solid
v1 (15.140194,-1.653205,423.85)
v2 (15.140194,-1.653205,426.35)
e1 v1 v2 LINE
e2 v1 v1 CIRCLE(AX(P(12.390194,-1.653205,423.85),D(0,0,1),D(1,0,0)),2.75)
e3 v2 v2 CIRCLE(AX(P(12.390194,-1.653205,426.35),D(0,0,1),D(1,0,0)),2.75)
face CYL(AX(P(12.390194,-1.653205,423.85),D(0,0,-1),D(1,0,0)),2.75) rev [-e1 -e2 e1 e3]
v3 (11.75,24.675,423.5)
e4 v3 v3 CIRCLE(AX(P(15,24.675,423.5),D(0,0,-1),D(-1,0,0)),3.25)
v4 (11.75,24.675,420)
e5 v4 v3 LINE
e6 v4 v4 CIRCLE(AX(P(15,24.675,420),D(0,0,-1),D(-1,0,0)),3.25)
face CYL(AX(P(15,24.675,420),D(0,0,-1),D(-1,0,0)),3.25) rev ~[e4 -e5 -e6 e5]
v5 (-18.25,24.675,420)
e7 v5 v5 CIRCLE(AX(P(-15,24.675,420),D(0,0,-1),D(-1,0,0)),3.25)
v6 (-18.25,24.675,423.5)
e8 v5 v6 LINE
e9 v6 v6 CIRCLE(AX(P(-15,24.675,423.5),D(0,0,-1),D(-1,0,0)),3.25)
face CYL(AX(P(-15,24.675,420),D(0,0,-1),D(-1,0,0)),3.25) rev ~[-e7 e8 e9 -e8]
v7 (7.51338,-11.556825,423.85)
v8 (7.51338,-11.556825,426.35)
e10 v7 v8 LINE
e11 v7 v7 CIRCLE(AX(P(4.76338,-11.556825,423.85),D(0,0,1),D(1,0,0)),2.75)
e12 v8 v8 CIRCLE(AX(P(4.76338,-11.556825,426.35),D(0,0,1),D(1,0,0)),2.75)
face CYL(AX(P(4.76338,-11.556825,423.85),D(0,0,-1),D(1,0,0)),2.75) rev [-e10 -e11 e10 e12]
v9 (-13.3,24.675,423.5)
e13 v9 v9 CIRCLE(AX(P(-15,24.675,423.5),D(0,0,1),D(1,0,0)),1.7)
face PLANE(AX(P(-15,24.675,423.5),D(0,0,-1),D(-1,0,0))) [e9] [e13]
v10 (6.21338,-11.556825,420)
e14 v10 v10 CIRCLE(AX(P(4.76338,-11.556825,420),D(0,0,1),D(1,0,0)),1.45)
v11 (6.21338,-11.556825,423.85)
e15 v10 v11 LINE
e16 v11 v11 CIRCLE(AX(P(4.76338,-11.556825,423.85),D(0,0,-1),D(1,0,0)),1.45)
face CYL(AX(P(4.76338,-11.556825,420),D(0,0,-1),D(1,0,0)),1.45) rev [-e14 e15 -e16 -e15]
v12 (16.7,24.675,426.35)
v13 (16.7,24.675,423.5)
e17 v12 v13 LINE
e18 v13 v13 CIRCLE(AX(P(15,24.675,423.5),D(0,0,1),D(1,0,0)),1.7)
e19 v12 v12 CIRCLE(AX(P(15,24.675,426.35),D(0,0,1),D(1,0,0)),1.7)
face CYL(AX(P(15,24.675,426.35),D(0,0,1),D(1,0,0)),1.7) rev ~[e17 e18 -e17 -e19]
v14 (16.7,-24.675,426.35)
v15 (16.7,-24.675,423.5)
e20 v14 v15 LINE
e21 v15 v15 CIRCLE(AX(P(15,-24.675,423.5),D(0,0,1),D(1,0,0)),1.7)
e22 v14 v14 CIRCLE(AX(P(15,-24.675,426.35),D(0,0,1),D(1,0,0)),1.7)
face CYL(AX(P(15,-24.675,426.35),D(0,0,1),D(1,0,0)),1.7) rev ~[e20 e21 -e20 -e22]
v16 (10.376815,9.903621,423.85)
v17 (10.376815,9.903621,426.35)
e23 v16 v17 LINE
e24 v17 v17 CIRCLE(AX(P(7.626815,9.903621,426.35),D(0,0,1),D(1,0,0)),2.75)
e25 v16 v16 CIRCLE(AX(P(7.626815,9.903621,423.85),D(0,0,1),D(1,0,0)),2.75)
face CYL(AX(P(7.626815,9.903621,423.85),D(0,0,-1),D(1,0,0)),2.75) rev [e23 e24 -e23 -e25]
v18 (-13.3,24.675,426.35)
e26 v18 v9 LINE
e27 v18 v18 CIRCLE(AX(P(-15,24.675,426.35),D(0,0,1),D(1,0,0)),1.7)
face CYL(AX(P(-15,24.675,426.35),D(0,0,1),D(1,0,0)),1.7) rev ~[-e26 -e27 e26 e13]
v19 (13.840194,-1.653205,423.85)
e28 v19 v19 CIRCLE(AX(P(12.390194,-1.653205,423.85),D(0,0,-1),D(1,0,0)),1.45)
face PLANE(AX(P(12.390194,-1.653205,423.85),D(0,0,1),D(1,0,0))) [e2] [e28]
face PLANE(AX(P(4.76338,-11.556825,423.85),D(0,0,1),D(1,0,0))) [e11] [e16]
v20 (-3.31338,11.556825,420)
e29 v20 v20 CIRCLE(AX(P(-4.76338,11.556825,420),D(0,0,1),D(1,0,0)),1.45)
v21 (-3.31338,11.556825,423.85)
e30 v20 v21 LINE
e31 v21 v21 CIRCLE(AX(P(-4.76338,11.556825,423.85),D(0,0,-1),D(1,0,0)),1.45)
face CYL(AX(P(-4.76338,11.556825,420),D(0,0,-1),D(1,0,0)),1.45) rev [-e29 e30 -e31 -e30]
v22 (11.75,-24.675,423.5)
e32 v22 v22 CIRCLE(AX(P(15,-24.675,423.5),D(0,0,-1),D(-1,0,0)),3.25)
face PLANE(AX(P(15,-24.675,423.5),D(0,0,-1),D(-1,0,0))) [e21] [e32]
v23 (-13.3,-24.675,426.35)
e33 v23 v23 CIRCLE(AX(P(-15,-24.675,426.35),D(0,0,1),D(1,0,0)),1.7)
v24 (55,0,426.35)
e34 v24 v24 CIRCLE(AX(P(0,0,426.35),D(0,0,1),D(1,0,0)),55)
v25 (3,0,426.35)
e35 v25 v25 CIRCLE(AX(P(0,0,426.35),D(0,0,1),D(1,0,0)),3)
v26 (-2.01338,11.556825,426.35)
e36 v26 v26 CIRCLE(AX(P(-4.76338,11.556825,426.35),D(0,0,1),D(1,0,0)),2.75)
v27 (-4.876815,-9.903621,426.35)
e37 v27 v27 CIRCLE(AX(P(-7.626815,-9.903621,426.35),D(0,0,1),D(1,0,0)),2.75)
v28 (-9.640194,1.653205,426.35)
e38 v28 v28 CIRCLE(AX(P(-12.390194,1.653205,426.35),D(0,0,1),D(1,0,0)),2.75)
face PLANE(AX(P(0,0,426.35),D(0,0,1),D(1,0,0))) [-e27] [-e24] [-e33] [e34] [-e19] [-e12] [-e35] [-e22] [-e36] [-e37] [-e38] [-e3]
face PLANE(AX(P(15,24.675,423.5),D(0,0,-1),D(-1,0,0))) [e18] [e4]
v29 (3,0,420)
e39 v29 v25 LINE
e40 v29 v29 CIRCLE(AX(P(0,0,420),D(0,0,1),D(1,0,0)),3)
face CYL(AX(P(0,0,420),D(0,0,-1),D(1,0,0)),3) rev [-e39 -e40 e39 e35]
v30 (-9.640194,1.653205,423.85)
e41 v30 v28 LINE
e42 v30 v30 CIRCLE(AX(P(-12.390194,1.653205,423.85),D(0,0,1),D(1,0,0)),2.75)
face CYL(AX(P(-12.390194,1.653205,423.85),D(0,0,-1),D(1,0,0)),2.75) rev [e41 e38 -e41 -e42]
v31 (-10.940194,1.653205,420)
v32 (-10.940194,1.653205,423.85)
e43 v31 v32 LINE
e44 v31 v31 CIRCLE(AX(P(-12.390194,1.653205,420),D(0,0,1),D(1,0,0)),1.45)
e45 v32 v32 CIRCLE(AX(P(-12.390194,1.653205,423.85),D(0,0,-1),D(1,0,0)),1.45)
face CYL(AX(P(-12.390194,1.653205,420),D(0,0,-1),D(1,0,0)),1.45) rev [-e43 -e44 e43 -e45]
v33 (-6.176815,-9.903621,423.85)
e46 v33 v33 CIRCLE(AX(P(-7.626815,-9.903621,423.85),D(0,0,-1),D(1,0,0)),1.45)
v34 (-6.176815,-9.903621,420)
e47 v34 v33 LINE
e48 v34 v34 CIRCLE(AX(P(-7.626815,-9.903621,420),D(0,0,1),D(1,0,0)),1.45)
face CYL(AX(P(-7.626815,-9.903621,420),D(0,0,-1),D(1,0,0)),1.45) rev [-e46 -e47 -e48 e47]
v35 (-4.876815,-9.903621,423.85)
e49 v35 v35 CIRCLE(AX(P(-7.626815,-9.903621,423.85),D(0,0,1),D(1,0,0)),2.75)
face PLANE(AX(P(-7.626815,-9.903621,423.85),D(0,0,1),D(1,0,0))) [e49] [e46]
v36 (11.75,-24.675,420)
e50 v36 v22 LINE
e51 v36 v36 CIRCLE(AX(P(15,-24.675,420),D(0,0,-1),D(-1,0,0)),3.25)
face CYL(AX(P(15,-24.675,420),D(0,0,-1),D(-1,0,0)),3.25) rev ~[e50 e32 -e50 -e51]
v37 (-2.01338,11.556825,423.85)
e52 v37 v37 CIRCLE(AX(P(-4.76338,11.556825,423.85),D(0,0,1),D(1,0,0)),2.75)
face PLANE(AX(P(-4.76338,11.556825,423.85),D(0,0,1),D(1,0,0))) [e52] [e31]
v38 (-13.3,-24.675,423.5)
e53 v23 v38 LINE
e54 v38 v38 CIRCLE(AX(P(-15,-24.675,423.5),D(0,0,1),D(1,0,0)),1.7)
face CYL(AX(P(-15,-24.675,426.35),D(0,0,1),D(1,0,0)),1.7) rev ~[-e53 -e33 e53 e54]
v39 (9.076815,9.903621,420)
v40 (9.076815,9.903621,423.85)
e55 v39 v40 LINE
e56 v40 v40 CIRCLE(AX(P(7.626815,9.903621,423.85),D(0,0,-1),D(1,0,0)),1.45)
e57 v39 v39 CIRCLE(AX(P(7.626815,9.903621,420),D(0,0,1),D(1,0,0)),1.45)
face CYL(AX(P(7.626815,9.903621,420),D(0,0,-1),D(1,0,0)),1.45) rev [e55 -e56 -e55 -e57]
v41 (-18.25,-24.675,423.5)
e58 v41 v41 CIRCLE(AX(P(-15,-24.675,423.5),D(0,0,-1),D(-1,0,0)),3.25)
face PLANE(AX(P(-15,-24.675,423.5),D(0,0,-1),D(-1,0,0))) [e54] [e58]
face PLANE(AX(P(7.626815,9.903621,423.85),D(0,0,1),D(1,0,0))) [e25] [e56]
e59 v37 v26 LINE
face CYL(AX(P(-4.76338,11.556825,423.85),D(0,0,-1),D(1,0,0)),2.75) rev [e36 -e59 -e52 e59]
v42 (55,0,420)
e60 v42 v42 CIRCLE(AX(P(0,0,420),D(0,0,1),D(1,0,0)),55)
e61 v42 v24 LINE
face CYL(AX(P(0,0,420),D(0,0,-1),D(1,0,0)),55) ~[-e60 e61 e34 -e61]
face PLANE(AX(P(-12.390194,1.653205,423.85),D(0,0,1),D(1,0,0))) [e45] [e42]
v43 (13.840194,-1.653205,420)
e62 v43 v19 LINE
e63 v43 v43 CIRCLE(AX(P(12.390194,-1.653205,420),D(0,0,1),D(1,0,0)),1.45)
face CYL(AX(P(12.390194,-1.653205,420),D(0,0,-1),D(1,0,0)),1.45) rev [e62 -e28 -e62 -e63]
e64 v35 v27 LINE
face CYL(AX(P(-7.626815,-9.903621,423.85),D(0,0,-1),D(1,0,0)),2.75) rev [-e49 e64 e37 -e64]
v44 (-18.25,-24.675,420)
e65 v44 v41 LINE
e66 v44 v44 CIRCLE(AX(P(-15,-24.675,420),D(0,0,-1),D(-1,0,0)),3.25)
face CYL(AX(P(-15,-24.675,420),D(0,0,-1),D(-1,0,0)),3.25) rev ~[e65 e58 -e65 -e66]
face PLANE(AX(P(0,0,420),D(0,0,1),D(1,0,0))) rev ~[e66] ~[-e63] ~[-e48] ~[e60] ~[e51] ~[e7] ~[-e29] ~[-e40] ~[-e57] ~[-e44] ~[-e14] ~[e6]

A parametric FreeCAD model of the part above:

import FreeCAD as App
import Part
import Sketcher

doc = App.newDocument("Part")
body = doc.addObject("PartDesign::Body", "Body")

sketch1 = doc.addObject("Sketcher::SketchObject", "Sketch")
body.addObject(sketch1)
sketch1.AttachmentSupport = (doc.XY_Plane, [""])
sketch1.MapMode = "FlatFace"
sketch1.AttachmentOffset = App.Placement(App.Vector(0, 0, 420), App.Rotation())
sketch1.addGeometry(Part.Circle(App.Vector(0, 0, 0), App.Vector(0, 0, 1), 55), False)
sketch1.addConstraint([
    Sketcher.Constraint("Coincident", 0, 3, -1, 1),
    Sketcher.Constraint("Diameter", 0, 110.0),
])
pad1 = doc.addObject("PartDesign::Pad", "Pad")
body.addObject(pad1)
pad1.Profile = sketch1
pad1.Length = 6.35

sketch2 = doc.addObject("Sketcher::SketchObject", "Sketch001")
body.addObject(sketch2)
sketch2.AttachmentSupport = (doc.XY_Plane, [""])
sketch2.MapMode = "FlatFace"
sketch2.AttachmentOffset = App.Placement(App.Vector(0, 0, 420), App.Rotation())
sketch2.addGeometry([
    Part.Circle(App.Vector(12.390194, -1.653205, 0), App.Vector(0, 0, 1), 1.45),
    Part.Circle(App.Vector(7.626815, 9.903621, 0), App.Vector(0, 0, 1), 1.45),
    Part.Circle(App.Vector(-4.76338, 11.556825, 0), App.Vector(0, 0, 1), 1.45),
    Part.Circle(App.Vector(-12.390194, 1.653205, 0), App.Vector(0, 0, 1), 1.45),
    Part.Circle(App.Vector(-7.626815, -9.903621, 0), App.Vector(0, 0, 1), 1.45),
    Part.Circle(App.Vector(4.76338, -11.556825, 0), App.Vector(0, 0, 1), 1.45),
], False)
sketch2.addConstraint([
    Sketcher.Constraint("Equal", 0, 1),
    Sketcher.Constraint("Equal", 1, 2),
    Sketcher.Constraint("Equal", 2, 3),
    Sketcher.Constraint("Equal", 3, 4),
    Sketcher.Constraint("Equal", 4, 5),
    Sketcher.Constraint("Symmetric", 0, 3, 3, 3, -1, 1),
    Sketcher.Constraint("Symmetric", 1, 3, 4, 3, -1, 1),
    Sketcher.Constraint("Symmetric", 2, 3, 5, 3, -1, 1),
    Sketcher.Constraint("Diameter", 0, 2.9),
    Sketcher.Constraint("DistanceY", -1, 1, 1, 3, 9.903621),
    Sketcher.Constraint("DistanceX", 2, 3, -1, 1, 4.76338),
    Sketcher.Constraint("DistanceX", 1, 3, 0, 3, 4.76338),
    Sketcher.Constraint("DistanceY", 0, 3, 2, 3, 13.21003),
    Sketcher.Constraint("DistanceY", 3, 3, 2, 3, 9.903621),
    Sketcher.Constraint("DistanceX", 3, 3, 1, 3, 20.017009),
])
pocket1 = doc.addObject("PartDesign::Pocket", "Pocket")
body.addObject(pocket1)
pocket1.Profile = sketch2
pocket1.Length = 6.35
pocket1.Reversed = True

sketch3 = doc.addObject("Sketcher::SketchObject", "Sketch002")
body.addObject(sketch3)
sketch3.AttachmentSupport = (doc.XY_Plane, [""])
sketch3.MapMode = "FlatFace"
sketch3.AttachmentOffset = App.Placement(App.Vector(0, 0, 423.85), App.Rotation())
sketch3.addGeometry([
    Part.Circle(App.Vector(12.390194, -1.653205, 0), App.Vector(0, 0, 1), 2.75),
    Part.Circle(App.Vector(7.626815, 9.903621, 0), App.Vector(0, 0, 1), 2.75),
    Part.Circle(App.Vector(-4.76338, 11.556825, 0), App.Vector(0, 0, 1), 2.75),
    Part.Circle(App.Vector(-12.390194, 1.653205, 0), App.Vector(0, 0, 1), 2.75),
    Part.Circle(App.Vector(-7.626815, -9.903621, 0), App.Vector(0, 0, 1), 2.75),
    Part.Circle(App.Vector(4.76338, -11.556825, 0), App.Vector(0, 0, 1), 2.75),
], False)
sketch3.addConstraint([
    Sketcher.Constraint("Equal", 0, 1),
    Sketcher.Constraint("Equal", 1, 2),
    Sketcher.Constraint("Equal", 2, 3),
    Sketcher.Constraint("Equal", 3, 4),
    Sketcher.Constraint("Equal", 4, 5),
    Sketcher.Constraint("Symmetric", 0, 3, 3, 3, -1, 1),
    Sketcher.Constraint("Symmetric", 1, 3, 4, 3, -1, 1),
    Sketcher.Constraint("Symmetric", 2, 3, 5, 3, -1, 1),
    Sketcher.Constraint("Diameter", 0, 5.5),
    Sketcher.Constraint("DistanceY", -1, 1, 1, 3, 9.903621),
    Sketcher.Constraint("DistanceX", 2, 3, -1, 1, 4.76338),
    Sketcher.Constraint("DistanceX", 1, 3, 0, 3, 4.76338),
    Sketcher.Constraint("DistanceY", 0, 3, 2, 3, 13.21003),
    Sketcher.Constraint("DistanceY", 3, 3, 2, 3, 9.903621),
    Sketcher.Constraint("DistanceX", 3, 3, 1, 3, 20.017009),
])
pocket2 = doc.addObject("PartDesign::Pocket", "Pocket001")
body.addObject(pocket2)
pocket2.Profile = sketch3
pocket2.Length = 2.5
pocket2.Reversed = True

sketch4 = doc.addObject("Sketcher::SketchObject", "Sketch003")
body.addObject(sketch4)
sketch4.AttachmentSupport = (doc.XY_Plane, [""])
sketch4.MapMode = "FlatFace"
sketch4.AttachmentOffset = App.Placement(App.Vector(0, 0, 420), App.Rotation())
sketch4.addGeometry(Part.Circle(App.Vector(0, 0, 0), App.Vector(0, 0, 1), 3), False)
sketch4.addConstraint([
    Sketcher.Constraint("Coincident", 0, 3, -1, 1),
    Sketcher.Constraint("Diameter", 0, 6.0),
])
pocket3 = doc.addObject("PartDesign::Pocket", "Pocket002")
body.addObject(pocket3)
pocket3.Profile = sketch4
pocket3.Length = 6.35
pocket3.Reversed = True

sketch5 = doc.addObject("Sketcher::SketchObject", "Sketch004")
body.addObject(sketch5)
sketch5.AttachmentSupport = (doc.XY_Plane, [""])
sketch5.MapMode = "FlatFace"
sketch5.AttachmentOffset = App.Placement(App.Vector(0, 0, 426.35), App.Rotation())
sketch5.addGeometry([
    Part.Circle(App.Vector(-15, -24.675, 0), App.Vector(0, 0, 1), 1.7),
    Part.Circle(App.Vector(15, -24.675, 0), App.Vector(0, 0, 1), 1.7),
    Part.Circle(App.Vector(-15, 24.675, 0), App.Vector(0, 0, 1), 1.7),
    Part.Circle(App.Vector(15, 24.675, 0), App.Vector(0, 0, 1), 1.7),
], False)
sketch5.addConstraint([
    Sketcher.Constraint("Equal", 0, 1),
    Sketcher.Constraint("Equal", 1, 2),
    Sketcher.Constraint("Equal", 2, 3),
    Sketcher.Constraint("Symmetric", 1, 3, 2, 3, -1, 1),
    Sketcher.Constraint("Symmetric", 0, 3, 3, 3, -1, 1),
    Sketcher.Constraint("Symmetric", 0, 3, 1, 3, -2),
    Sketcher.Constraint("Diameter", 0, 3.4),
    Sketcher.Constraint("DistanceX", 0, 3, -1, 1, 15.0),
    Sketcher.Constraint("DistanceY", 0, 3, 2, 3, 49.35),
])
pocket4 = doc.addObject("PartDesign::Pocket", "Pocket003")
body.addObject(pocket4)
pocket4.Profile = sketch5
pocket4.Type = "ThroughAll"

sketch6 = doc.addObject("Sketcher::SketchObject", "Sketch005")
body.addObject(sketch6)
sketch6.AttachmentSupport = (doc.XY_Plane, [""])
sketch6.MapMode = "FlatFace"
sketch6.AttachmentOffset = App.Placement(App.Vector(0, 0, 420), App.Rotation())
sketch6.addGeometry([
    Part.Circle(App.Vector(-15, -24.675, 0), App.Vector(0, 0, 1), 3.25),
    Part.Circle(App.Vector(15, -24.675, 0), App.Vector(0, 0, 1), 3.25),
    Part.Circle(App.Vector(-15, 24.675, 0), App.Vector(0, 0, 1), 3.25),
    Part.Circle(App.Vector(15, 24.675, 0), App.Vector(0, 0, 1), 3.25),
], False)
sketch6.addConstraint([
    Sketcher.Constraint("Equal", 0, 1),
    Sketcher.Constraint("Equal", 1, 2),
    Sketcher.Constraint("Equal", 2, 3),
    Sketcher.Constraint("Symmetric", 1, 3, 2, 3, -1, 1),
    Sketcher.Constraint("Symmetric", 0, 3, 3, 3, -1, 1),
    Sketcher.Constraint("Symmetric", 0, 3, 1, 3, -2),
    Sketcher.Constraint("Diameter", 0, 6.5),
    Sketcher.Constraint("DistanceX", 0, 3, -1, 1, 15.0),
    Sketcher.Constraint("DistanceY", 0, 3, 2, 3, 49.35),
])
pocket5 = doc.addObject("PartDesign::Pocket", "Pocket004")
body.addObject(pocket5)
pocket5.Profile = sketch6
pocket5.Length = 3.5
pocket5.Reversed = True

doc.recompute()
